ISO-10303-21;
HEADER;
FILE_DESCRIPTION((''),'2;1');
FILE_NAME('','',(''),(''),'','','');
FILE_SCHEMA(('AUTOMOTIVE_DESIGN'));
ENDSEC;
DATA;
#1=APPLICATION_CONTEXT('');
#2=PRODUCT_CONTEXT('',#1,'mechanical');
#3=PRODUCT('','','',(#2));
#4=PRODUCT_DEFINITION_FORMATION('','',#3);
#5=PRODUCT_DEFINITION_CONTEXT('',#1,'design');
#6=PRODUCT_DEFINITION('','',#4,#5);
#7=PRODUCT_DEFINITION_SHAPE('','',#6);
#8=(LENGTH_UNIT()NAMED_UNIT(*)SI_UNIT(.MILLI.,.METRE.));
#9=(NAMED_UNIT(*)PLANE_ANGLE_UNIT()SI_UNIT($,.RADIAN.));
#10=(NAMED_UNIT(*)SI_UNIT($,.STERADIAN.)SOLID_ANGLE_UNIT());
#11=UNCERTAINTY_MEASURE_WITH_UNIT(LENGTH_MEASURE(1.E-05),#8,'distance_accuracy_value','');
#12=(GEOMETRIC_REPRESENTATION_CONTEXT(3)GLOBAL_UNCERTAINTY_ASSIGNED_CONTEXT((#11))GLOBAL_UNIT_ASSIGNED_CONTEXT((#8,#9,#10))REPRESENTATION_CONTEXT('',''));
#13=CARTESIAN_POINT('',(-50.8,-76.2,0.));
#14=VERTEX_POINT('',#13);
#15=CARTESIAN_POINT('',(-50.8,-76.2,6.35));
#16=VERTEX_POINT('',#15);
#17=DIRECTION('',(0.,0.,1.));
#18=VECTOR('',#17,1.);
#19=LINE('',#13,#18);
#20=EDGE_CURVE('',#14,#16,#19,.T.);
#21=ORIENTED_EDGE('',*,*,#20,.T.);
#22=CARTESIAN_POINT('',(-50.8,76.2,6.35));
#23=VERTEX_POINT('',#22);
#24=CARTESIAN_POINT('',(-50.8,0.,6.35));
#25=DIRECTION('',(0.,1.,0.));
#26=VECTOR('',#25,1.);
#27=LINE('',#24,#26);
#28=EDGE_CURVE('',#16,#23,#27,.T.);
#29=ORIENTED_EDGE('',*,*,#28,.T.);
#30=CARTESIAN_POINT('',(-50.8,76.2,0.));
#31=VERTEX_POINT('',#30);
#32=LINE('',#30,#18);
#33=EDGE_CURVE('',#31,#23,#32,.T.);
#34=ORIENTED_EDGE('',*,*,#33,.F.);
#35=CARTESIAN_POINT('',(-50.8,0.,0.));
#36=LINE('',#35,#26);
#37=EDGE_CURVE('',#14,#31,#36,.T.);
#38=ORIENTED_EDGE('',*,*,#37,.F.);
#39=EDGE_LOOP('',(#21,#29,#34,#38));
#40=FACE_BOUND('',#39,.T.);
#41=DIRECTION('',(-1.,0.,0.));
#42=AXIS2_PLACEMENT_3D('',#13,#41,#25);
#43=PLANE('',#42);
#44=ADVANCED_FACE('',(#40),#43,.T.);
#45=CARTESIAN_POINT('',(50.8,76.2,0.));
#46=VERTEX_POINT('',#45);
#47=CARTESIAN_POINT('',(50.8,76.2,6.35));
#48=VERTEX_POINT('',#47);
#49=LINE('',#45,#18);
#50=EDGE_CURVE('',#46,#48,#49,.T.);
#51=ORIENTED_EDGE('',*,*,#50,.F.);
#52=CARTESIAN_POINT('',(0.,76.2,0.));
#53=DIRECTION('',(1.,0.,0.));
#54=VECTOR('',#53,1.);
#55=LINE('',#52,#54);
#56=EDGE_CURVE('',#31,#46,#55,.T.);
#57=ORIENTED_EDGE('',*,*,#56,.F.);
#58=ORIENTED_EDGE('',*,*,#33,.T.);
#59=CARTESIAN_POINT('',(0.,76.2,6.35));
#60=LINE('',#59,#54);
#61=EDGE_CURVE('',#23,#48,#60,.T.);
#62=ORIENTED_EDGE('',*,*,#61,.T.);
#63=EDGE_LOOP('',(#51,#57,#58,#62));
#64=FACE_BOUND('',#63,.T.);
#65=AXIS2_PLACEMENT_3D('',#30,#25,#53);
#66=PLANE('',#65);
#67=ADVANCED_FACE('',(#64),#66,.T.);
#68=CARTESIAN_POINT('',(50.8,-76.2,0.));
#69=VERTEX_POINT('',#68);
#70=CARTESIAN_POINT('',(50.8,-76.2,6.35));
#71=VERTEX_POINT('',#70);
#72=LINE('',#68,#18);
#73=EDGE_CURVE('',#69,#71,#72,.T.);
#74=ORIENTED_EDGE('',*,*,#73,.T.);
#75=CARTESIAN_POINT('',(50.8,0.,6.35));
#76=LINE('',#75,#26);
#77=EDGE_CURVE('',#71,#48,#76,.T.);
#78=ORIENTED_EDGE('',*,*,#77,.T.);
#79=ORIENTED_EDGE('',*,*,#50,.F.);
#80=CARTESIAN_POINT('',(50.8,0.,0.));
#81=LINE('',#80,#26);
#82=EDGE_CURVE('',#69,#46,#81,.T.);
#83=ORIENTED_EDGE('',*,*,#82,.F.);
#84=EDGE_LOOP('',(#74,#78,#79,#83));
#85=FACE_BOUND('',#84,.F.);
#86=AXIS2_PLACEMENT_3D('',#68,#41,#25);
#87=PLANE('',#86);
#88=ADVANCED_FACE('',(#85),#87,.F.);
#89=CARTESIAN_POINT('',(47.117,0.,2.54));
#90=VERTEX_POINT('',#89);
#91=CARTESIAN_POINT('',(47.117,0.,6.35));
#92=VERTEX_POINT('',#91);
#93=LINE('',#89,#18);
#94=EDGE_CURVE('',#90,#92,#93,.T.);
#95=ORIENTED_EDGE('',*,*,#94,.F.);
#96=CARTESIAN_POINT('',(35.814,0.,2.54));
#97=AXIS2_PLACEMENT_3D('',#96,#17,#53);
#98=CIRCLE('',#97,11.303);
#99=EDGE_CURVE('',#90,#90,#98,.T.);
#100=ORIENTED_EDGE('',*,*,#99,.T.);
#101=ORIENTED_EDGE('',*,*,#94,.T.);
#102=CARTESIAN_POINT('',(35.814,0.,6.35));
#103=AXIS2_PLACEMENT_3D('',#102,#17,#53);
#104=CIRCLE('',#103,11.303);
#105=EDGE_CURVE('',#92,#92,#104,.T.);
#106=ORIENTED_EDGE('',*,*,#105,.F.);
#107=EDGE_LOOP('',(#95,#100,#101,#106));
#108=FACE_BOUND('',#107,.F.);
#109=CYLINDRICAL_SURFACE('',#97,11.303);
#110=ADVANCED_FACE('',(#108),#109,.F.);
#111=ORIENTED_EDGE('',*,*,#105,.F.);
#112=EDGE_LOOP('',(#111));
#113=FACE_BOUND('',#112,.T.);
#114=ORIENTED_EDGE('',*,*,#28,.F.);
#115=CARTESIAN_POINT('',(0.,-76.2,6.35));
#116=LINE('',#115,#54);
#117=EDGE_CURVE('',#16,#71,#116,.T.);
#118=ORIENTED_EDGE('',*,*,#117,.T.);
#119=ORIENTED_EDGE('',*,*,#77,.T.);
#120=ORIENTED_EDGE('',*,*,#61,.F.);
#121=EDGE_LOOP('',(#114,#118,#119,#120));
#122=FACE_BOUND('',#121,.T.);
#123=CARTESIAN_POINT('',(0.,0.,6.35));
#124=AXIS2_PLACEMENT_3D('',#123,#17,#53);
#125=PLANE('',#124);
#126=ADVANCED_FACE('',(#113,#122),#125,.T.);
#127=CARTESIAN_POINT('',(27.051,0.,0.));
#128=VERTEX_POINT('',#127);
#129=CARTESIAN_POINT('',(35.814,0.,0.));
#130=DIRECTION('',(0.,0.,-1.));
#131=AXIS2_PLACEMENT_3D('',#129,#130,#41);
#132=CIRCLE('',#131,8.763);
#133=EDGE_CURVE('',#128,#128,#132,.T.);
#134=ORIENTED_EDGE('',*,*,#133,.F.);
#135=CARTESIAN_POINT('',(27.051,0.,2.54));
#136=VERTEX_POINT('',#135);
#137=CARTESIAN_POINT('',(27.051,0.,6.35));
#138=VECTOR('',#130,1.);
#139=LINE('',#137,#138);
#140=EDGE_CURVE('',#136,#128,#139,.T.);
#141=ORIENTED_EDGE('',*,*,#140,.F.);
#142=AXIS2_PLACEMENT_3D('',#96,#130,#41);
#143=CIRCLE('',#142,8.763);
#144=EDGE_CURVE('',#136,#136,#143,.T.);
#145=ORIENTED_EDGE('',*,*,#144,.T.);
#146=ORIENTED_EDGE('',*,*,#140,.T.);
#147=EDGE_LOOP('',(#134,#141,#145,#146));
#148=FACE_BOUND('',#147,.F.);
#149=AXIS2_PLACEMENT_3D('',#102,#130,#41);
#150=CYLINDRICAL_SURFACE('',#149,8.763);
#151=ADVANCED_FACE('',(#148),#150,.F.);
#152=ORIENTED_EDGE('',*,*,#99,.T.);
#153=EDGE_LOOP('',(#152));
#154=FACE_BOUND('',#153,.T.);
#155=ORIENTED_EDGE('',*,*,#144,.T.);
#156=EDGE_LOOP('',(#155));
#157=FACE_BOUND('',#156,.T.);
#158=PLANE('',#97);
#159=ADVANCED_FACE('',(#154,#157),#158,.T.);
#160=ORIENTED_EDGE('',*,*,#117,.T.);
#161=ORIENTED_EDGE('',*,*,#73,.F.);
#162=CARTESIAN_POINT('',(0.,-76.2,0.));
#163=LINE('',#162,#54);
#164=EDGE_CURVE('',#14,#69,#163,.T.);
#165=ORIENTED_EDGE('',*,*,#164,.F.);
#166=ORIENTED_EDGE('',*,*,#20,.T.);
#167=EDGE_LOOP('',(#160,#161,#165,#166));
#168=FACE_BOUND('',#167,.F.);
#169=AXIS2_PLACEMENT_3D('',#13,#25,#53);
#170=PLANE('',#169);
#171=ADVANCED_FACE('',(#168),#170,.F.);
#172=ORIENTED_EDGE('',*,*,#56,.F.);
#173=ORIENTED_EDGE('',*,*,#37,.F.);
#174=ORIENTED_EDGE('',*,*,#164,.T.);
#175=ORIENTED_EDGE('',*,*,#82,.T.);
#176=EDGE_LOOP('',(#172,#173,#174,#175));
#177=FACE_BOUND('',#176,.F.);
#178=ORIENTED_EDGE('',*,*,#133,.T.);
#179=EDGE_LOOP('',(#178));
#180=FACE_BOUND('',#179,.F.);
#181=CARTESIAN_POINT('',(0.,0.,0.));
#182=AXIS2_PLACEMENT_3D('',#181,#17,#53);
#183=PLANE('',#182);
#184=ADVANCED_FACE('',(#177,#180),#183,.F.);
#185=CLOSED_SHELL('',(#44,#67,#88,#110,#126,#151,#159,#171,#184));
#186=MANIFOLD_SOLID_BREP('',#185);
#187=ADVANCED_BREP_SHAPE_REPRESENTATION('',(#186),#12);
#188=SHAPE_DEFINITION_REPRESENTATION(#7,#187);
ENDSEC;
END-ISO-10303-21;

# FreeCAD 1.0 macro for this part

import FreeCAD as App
import Part
import Sketcher

V = App.Vector
Q = App.Units.Quantity


def add_polygon(sketch, points):
    """Adds a closed chain of lines whose ends are joined by coincident constraints."""
    first, n = sketch.GeometryCount, len(points)
    for a, b in zip(points, points[1:] + points[:1]):
        sketch.addGeometry(Part.LineSegment(App.Vector(*a, 0), App.Vector(*b, 0)), False)
    for i in range(n):
        sketch.addConstraint(Sketcher.Constraint("Coincident", first + i, 2, first + (i + 1) % n, 1))

doc = App.newDocument("Part")
body = doc.addObject("PartDesign::Body", "Body")

# Sketch on XY plane
sketch1 = body.newObject("Sketcher::SketchObject", "Sketch")
sketch1.AttachmentSupport = (doc.getObject("XY_Plane"), [""])
sketch1.MapMode = "FlatFace"
add_polygon(sketch1, [(-51, 76), (-51, -76), (51, -76), (51, 76)])  # lines 0-3
sketch1.addConstraint([
    Sketcher.Constraint("Vertical", 0),
    Sketcher.Constraint("Horizontal", 1),
    Sketcher.Constraint("Vertical", 2),
    Sketcher.Constraint("Horizontal", 3),
    Sketcher.Constraint("Symmetric", 0, 2, 2, 2, -1, 1),
    Sketcher.Constraint("DistanceX", 1, 1, 1, 2, Q("4 in")),
    Sketcher.Constraint("DistanceY", 0, 2, 0, 1, Q("6 in")),
])
pad1 = body.newObject("PartDesign::Pad", "Pad")
pad1.Profile = sketch1
pad1.Length = Q("0.25 in")

# Sketch on XY plane
sketch2 = body.newObject("Sketcher::SketchObject", "Sketch001")
sketch2.AttachmentSupport = (doc.getObject("XY_Plane"), [""])
sketch2.MapMode = "FlatFace"
sketch2.AttachmentOffset = App.Placement(V(0, 0, 0.25 * 25.4), App.Rotation())
sketch2.addGeometry(Part.Circle(V(36, 0, 0), V(0, 0, 1), 9), False)
sketch2.addConstraint([
    Sketcher.Constraint("PointOnObject", 0, 3, -1),
    Sketcher.Constraint("Diameter", 0, Q("0.69 in")),
    Sketcher.Constraint("DistanceX", -1, 1, 0, 3, Q("1.41 in")),
])
doc.recompute()
hole = body.newObject("PartDesign::Hole", "Hole")
hole.Profile = sketch2
hole.ThreadType = "None"
hole.Diameter = Q("0.69 in")
hole.DepthType = "ThroughAll"
hole.HoleCutType = "Counterbore"
hole.HoleCutDiameter = Q("0.89 in")
hole.HoleCutDepth = Q("0.15 in")

doc.recompute()
